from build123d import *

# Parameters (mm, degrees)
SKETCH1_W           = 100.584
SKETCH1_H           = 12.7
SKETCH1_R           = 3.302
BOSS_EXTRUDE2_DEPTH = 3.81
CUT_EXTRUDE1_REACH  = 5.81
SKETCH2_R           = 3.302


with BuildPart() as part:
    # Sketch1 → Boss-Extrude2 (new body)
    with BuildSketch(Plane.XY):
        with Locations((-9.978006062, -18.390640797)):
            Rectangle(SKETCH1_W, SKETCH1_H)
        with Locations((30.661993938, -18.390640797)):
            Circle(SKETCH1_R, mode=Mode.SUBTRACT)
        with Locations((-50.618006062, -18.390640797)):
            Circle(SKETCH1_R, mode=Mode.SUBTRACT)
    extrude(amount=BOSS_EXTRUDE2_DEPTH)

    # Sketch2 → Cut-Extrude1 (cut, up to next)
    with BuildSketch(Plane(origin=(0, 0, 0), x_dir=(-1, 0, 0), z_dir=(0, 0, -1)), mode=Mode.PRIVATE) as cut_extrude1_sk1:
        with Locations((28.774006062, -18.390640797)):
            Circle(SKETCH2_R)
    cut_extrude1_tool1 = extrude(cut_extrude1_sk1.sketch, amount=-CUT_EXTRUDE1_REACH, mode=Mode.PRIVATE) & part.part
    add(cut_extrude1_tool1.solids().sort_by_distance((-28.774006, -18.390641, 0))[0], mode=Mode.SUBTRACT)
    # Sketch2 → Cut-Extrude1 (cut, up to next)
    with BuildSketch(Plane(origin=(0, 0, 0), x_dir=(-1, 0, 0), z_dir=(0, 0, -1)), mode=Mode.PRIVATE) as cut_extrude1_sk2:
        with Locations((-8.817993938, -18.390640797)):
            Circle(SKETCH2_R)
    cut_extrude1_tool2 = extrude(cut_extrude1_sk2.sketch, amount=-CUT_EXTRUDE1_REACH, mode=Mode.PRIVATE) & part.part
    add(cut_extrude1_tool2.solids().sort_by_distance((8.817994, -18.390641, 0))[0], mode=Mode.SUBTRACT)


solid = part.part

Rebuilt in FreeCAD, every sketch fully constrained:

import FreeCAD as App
import Part
import Sketcher
Q = App.Units.Quantity


def add_polygon(sketch, points):
    """Adds a closed chain of lines whose ends are joined by coincident constraints."""
    first, n = sketch.GeometryCount, len(points)
    for a, b in zip(points, points[1:] + points[:1]):
        sketch.addGeometry(Part.LineSegment(App.Vector(*a, 0), App.Vector(*b, 0)), False)
    for i in range(n):
        sketch.addConstraint(Sketcher.Constraint("Coincident", first + i, 2, first + (i + 1) % n, 1))

doc = App.newDocument("Part")
body = doc.addObject("PartDesign::Body", "Body")

# Sketch on XY plane
sketch1 = body.newObject("Sketcher::SketchObject", "Sketch")
sketch1.AttachmentSupport = (doc.getObject("XY_Plane"), [""])
sketch1.MapMode = "FlatFace"
add_polygon(sketch1, [(-60.3, -12), (-60.3, -24.7), (40.3, -24.7), (40.3, -12)])  # lines 0-3
sketch1.addGeometry(Part.Circle(App.Vector(-50.6, -18.4, 0), App.Vector(0, 0, 1), 3.3), False)  # 4
sketch1.addGeometry(Part.Circle(App.Vector(30.7, -18.4, 0), App.Vector(0, 0, 1), 3.3), False)  # 5
sketch1.addConstraint(Sketcher.Constraint("Vertical", 0))
sketch1.addConstraint(Sketcher.Constraint("Horizontal", 1))
sketch1.addConstraint(Sketcher.Constraint("Vertical", 2))
sketch1.addConstraint(Sketcher.Constraint("Horizontal", 3))
sketch1.addConstraint(Sketcher.Constraint("Equal", 4, 5))
sketch1.addConstraint(Sketcher.Constraint("Horizontal", 4, 3, 5, 3))
sketch1.addConstraint(Sketcher.Constraint("Diameter", 4, Q("0.26 in")))
sketch1.addConstraint(Sketcher.Constraint("DistanceY", 0, 2, 0, 1, Q("0.5 in")))
sketch1.addConstraint(Sketcher.Constraint("DistanceX", 1, 1, 1, 2, Q("3.96 in")))
sketch1.addConstraint(Sketcher.Constraint("DistanceX", 4, 3, 5, 3, Q("3.2 in")))
sketch1.addConstraint(Sketcher.Constraint("DistanceX", 0, 2, 4, 3, Q("0.38 in")))
sketch1.addConstraint(Sketcher.Constraint("DistanceY", 0, 2, 4, 3, Q("0.25 in")))
sketch1.addConstraint(Sketcher.Constraint("DistanceY", 4, 3, -1, 1, Q("18.390641 mm")))
sketch1.addConstraint(Sketcher.Constraint("DistanceX", 4, 3, -1, 1, Q("50.618006 mm")))
pad1 = body.newObject("PartDesign::Pad", "Pad")
pad1.Profile = sketch1
pad1.Length = Q("0.15 in")

# Sketch on XY plane
sketch2 = body.newObject("Sketcher::SketchObject", "Sketch001")
sketch2.AttachmentSupport = (doc.getObject("XY_Plane"), [""])
sketch2.MapMode = "FlatFace"
sketch2.addGeometry(Part.Circle(App.Vector(-28.8, -18.4, 0), App.Vector(0, 0, 1), 3.3), False)
sketch2.addConstraint(Sketcher.Constraint("Diameter", 0, Q("0.26 in")))
sketch2.addConstraint(Sketcher.Constraint("DistanceY", 0, 3, -1, 1, Q("18.390641 mm")))
sketch2.addConstraint(Sketcher.Constraint("DistanceX", 0, 3, -1, 1, Q("28.774006 mm")))
pocket1 = body.newObject("PartDesign::Pocket", "Pocket")
pocket1.Profile = sketch2
pocket1.Type = "UpToFirst"
pocket1.Reversed = True

# Sketch on XY plane
sketch3 = body.newObject("Sketcher::SketchObject", "Sketch002")
sketch3.AttachmentSupport = (doc.getObject("XY_Plane"), [""])
sketch3.MapMode = "FlatFace"
sketch3.addGeometry(Part.Circle(App.Vector(8.8, -18.4, 0), App.Vector(0, 0, 1), 3.3), False)
sketch3.addConstraint(Sketcher.Constraint("Diameter", 0, Q("0.26 in")))
sketch3.addConstraint(Sketcher.Constraint("DistanceY", 0, 3, -1, 1, Q("18.390641 mm")))
sketch3.addConstraint(Sketcher.Constraint("DistanceX", -1, 1, 0, 3, Q("8.817994 mm")))
pocket2 = body.newObject("PartDesign::Pocket", "Pocket001")
pocket2.Profile = sketch3
pocket2.Type = "UpToFirst"
pocket2.Reversed = True

doc.recompute()
